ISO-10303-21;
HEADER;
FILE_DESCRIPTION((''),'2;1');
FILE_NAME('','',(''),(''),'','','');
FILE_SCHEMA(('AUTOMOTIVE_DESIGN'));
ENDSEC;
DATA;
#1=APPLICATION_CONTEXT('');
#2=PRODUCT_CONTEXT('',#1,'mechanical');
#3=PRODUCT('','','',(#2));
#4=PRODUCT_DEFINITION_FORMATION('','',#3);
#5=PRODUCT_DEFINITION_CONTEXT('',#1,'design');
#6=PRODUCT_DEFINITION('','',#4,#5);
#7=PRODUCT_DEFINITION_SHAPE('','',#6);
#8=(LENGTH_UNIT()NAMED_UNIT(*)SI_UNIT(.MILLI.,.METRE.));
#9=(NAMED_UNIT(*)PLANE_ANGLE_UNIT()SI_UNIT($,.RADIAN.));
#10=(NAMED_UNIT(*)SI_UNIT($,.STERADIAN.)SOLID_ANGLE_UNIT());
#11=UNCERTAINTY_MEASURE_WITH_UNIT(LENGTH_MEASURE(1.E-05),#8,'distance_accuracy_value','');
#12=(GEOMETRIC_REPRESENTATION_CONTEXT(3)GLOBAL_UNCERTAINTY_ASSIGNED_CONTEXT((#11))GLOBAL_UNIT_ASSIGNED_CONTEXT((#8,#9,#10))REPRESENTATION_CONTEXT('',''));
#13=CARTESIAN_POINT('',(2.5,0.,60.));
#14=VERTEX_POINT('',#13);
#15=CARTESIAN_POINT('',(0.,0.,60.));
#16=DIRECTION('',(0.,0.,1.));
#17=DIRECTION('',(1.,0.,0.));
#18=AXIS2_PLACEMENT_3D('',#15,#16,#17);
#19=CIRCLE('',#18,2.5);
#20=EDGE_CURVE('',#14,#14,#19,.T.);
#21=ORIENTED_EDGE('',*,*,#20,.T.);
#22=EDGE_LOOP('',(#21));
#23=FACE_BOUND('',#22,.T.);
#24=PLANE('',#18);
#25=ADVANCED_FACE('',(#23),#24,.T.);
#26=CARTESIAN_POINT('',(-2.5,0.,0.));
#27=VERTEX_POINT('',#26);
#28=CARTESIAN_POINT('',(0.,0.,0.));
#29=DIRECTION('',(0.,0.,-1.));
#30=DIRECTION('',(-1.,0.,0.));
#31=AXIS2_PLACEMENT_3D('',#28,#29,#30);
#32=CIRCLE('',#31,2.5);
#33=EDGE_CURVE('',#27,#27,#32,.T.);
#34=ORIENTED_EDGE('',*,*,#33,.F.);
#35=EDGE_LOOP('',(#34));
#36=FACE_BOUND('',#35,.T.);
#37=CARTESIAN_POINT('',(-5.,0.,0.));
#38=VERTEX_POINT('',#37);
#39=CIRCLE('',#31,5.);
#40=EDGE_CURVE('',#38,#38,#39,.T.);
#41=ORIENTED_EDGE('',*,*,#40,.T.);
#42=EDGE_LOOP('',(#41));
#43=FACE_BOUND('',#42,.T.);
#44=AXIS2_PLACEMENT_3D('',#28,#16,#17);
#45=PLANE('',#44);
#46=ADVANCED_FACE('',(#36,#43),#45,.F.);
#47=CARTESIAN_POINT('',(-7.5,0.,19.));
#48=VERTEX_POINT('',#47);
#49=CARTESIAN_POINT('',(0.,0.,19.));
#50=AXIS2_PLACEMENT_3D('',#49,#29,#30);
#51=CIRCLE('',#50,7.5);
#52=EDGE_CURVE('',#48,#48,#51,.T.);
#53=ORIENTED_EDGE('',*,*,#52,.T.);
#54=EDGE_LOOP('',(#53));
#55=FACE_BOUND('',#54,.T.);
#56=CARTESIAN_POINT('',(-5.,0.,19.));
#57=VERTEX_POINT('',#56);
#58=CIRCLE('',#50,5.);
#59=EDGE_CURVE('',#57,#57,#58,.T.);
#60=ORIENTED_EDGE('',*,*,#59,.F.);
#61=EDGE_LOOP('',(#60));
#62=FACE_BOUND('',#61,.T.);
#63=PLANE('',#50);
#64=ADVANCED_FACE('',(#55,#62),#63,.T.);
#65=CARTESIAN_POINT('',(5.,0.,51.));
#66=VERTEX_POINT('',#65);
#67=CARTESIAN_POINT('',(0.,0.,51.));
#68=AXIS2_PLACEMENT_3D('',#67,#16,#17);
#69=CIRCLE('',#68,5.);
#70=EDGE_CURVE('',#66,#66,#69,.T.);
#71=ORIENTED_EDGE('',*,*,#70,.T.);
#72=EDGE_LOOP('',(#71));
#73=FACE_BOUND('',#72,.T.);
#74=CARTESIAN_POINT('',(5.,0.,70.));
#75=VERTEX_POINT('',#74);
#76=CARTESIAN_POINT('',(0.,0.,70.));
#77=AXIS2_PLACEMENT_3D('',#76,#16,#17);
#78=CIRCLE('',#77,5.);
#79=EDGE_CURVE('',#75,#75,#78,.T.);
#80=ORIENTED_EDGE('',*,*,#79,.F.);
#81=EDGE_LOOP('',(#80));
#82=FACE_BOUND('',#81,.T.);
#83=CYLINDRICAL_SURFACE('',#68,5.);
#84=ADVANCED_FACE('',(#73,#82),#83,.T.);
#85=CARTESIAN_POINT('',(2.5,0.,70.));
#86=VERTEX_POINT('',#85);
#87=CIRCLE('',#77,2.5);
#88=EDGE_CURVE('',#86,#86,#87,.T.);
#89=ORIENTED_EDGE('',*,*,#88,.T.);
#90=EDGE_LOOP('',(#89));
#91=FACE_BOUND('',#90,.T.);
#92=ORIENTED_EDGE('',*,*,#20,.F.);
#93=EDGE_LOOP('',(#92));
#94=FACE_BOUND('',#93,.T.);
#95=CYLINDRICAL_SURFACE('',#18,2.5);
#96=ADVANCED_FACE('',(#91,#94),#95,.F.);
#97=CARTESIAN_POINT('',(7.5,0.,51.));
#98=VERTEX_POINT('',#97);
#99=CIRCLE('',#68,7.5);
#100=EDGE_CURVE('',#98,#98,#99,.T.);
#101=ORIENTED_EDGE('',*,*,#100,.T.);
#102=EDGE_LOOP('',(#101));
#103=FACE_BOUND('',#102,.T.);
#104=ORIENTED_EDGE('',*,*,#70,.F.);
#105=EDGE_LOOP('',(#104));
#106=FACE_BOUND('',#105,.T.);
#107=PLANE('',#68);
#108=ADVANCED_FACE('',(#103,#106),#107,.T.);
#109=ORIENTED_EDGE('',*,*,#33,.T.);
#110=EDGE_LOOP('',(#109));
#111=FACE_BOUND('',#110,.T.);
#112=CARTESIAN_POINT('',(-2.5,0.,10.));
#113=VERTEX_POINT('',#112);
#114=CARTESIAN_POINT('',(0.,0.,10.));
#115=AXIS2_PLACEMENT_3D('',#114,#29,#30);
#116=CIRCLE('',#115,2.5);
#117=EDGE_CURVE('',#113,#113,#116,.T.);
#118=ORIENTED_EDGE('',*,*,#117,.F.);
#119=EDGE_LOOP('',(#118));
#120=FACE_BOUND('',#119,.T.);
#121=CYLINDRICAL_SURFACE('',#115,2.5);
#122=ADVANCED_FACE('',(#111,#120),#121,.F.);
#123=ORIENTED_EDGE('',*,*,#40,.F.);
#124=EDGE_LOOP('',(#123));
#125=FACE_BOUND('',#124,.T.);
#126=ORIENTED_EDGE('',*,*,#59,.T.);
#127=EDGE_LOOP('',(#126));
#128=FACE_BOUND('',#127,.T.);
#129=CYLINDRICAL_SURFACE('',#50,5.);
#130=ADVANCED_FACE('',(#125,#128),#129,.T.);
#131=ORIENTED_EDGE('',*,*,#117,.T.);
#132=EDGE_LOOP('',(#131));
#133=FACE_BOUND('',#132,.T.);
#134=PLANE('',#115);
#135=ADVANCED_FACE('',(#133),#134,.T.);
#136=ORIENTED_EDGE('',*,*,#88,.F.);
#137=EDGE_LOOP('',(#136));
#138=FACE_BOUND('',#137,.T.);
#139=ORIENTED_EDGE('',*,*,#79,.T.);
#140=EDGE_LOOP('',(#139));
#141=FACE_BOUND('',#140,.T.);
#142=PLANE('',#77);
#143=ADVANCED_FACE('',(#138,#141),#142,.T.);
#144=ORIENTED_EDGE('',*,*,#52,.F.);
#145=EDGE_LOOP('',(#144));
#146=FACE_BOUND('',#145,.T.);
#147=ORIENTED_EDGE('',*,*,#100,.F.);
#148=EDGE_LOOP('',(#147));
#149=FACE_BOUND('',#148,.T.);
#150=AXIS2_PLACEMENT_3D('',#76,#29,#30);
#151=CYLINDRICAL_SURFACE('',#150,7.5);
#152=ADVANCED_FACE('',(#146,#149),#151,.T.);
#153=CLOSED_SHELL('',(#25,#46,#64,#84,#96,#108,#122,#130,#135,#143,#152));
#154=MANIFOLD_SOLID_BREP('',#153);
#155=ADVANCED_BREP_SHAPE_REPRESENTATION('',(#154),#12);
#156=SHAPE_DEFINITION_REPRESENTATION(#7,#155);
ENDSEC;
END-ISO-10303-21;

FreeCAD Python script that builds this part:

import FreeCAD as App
import Part
import Sketcher
Q = App.Units.Quantity

doc = App.newDocument("Part")
body = doc.addObject("PartDesign::Body", "Body")

sketch1 = body.newObject("Sketcher::SketchObject", "Sketch")
sketch1.AttachmentSupport = (doc.getObject("XY_Plane"), [""])
sketch1.MapMode = "FlatFace"
sketch1.addGeometry(Part.Circle(App.Vector(0, 0, 0), App.Vector(0, 0, 1), 8), False)
sketch1.addConstraint([
    Sketcher.Constraint("Coincident", 0, 3, -1, 1),
    Sketcher.Constraint("Diameter", 0, Q("15 mm")),
])
pad1 = body.newObject("PartDesign::Pad", "Pad")
pad1.Profile = sketch1
pad1.Length = 70

sketch2 = body.newObject("Sketcher::SketchObject", "Sketch001")
sketch2.AttachmentSupport = (doc.getObject("XY_Plane"), [""])
sketch2.MapMode = "FlatFace"
sketch2.addGeometry([
    Part.Circle(App.Vector(0, 0, 0), App.Vector(0, 0, 1), 10),
    Part.Circle(App.Vector(0, 0, 0), App.Vector(0, 0, 1), 5),
], False)
sketch2.addConstraint([
    Sketcher.Constraint("Coincident", 0, 3, -1, 1),
    Sketcher.Constraint("Coincident", 1, 3, -1, 1),
    Sketcher.Constraint("Diameter", 1, Q("10 mm")),
    Sketcher.Constraint("Diameter", 0, Q("20.388896 mm")),
])
pocket1 = body.newObject("PartDesign::Pocket", "Pocket")
pocket1.Profile = sketch2
pocket1.Length = 19
pocket1.Reversed = True

sketch3 = body.newObject("Sketcher::SketchObject", "Sketch002")
sketch3.AttachmentSupport = (doc.getObject("XY_Plane"), [""])
sketch3.MapMode = "FlatFace"
sketch3.AttachmentOffset = App.Placement(App.Vector(0, 0, 51), App.Rotation())
sketch3.addGeometry([
    Part.Circle(App.Vector(0, 0, 0), App.Vector(0, 0, 1), 10),
    Part.Circle(App.Vector(0, 0, 0), App.Vector(0, 0, 1), 5),
], False)
sketch3.addConstraint([
    Sketcher.Constraint("Coincident", 0, 3, -1, 1),
    Sketcher.Constraint("Coincident", 1, 3, -1, 1),
    Sketcher.Constraint("Diameter", 1, Q("10 mm")),
    Sketcher.Constraint("Diameter", 0, Q("19.903822 mm")),
])
pocket2 = body.newObject("PartDesign::Pocket", "Pocket001")
pocket2.Profile = sketch3
pocket2.Length = 19
pocket2.Reversed = True

sketch4 = body.newObject("Sketcher::SketchObject", "Sketch003")
sketch4.AttachmentSupport = (doc.getObject("XY_Plane"), [""])
sketch4.MapMode = "FlatFace"
sketch4.AttachmentOffset = App.Placement(App.Vector(0, 0, 70), App.Rotation())
sketch4.addGeometry(Part.Circle(App.Vector(0, 0, 0), App.Vector(0, 0, 1), 2.5), False)
sketch4.addConstraint([
    Sketcher.Constraint("Coincident", 0, 3, -1, 1),
    Sketcher.Constraint("Diameter", 0, Q("5 mm")),
])
pocket3 = body.newObject("PartDesign::Pocket", "Pocket002")
pocket3.Profile = sketch4
pocket3.Length = 10

sketch5 = body.newObject("Sketcher::SketchObject", "Sketch004")
sketch5.AttachmentSupport = (doc.getObject("XY_Plane"), [""])
sketch5.MapMode = "FlatFace"
sketch5.AttachmentOffset = App.Placement(App.Vector(0, 0, 10), App.Rotation())
sketch5.addGeometry(Part.Circle(App.Vector(0, 0, 0), App.Vector(0, 0, 1), 2.5), False)
sketch5.addConstraint([
    Sketcher.Constraint("Coincident", 0, 3, -1, 1),
    Sketcher.Constraint("Diameter", 0, Q("5 mm")),
])
pocket4 = body.newObject("PartDesign::Pocket", "Pocket003")
pocket4.Profile = sketch5
pocket4.Length = 10

doc.recompute()
